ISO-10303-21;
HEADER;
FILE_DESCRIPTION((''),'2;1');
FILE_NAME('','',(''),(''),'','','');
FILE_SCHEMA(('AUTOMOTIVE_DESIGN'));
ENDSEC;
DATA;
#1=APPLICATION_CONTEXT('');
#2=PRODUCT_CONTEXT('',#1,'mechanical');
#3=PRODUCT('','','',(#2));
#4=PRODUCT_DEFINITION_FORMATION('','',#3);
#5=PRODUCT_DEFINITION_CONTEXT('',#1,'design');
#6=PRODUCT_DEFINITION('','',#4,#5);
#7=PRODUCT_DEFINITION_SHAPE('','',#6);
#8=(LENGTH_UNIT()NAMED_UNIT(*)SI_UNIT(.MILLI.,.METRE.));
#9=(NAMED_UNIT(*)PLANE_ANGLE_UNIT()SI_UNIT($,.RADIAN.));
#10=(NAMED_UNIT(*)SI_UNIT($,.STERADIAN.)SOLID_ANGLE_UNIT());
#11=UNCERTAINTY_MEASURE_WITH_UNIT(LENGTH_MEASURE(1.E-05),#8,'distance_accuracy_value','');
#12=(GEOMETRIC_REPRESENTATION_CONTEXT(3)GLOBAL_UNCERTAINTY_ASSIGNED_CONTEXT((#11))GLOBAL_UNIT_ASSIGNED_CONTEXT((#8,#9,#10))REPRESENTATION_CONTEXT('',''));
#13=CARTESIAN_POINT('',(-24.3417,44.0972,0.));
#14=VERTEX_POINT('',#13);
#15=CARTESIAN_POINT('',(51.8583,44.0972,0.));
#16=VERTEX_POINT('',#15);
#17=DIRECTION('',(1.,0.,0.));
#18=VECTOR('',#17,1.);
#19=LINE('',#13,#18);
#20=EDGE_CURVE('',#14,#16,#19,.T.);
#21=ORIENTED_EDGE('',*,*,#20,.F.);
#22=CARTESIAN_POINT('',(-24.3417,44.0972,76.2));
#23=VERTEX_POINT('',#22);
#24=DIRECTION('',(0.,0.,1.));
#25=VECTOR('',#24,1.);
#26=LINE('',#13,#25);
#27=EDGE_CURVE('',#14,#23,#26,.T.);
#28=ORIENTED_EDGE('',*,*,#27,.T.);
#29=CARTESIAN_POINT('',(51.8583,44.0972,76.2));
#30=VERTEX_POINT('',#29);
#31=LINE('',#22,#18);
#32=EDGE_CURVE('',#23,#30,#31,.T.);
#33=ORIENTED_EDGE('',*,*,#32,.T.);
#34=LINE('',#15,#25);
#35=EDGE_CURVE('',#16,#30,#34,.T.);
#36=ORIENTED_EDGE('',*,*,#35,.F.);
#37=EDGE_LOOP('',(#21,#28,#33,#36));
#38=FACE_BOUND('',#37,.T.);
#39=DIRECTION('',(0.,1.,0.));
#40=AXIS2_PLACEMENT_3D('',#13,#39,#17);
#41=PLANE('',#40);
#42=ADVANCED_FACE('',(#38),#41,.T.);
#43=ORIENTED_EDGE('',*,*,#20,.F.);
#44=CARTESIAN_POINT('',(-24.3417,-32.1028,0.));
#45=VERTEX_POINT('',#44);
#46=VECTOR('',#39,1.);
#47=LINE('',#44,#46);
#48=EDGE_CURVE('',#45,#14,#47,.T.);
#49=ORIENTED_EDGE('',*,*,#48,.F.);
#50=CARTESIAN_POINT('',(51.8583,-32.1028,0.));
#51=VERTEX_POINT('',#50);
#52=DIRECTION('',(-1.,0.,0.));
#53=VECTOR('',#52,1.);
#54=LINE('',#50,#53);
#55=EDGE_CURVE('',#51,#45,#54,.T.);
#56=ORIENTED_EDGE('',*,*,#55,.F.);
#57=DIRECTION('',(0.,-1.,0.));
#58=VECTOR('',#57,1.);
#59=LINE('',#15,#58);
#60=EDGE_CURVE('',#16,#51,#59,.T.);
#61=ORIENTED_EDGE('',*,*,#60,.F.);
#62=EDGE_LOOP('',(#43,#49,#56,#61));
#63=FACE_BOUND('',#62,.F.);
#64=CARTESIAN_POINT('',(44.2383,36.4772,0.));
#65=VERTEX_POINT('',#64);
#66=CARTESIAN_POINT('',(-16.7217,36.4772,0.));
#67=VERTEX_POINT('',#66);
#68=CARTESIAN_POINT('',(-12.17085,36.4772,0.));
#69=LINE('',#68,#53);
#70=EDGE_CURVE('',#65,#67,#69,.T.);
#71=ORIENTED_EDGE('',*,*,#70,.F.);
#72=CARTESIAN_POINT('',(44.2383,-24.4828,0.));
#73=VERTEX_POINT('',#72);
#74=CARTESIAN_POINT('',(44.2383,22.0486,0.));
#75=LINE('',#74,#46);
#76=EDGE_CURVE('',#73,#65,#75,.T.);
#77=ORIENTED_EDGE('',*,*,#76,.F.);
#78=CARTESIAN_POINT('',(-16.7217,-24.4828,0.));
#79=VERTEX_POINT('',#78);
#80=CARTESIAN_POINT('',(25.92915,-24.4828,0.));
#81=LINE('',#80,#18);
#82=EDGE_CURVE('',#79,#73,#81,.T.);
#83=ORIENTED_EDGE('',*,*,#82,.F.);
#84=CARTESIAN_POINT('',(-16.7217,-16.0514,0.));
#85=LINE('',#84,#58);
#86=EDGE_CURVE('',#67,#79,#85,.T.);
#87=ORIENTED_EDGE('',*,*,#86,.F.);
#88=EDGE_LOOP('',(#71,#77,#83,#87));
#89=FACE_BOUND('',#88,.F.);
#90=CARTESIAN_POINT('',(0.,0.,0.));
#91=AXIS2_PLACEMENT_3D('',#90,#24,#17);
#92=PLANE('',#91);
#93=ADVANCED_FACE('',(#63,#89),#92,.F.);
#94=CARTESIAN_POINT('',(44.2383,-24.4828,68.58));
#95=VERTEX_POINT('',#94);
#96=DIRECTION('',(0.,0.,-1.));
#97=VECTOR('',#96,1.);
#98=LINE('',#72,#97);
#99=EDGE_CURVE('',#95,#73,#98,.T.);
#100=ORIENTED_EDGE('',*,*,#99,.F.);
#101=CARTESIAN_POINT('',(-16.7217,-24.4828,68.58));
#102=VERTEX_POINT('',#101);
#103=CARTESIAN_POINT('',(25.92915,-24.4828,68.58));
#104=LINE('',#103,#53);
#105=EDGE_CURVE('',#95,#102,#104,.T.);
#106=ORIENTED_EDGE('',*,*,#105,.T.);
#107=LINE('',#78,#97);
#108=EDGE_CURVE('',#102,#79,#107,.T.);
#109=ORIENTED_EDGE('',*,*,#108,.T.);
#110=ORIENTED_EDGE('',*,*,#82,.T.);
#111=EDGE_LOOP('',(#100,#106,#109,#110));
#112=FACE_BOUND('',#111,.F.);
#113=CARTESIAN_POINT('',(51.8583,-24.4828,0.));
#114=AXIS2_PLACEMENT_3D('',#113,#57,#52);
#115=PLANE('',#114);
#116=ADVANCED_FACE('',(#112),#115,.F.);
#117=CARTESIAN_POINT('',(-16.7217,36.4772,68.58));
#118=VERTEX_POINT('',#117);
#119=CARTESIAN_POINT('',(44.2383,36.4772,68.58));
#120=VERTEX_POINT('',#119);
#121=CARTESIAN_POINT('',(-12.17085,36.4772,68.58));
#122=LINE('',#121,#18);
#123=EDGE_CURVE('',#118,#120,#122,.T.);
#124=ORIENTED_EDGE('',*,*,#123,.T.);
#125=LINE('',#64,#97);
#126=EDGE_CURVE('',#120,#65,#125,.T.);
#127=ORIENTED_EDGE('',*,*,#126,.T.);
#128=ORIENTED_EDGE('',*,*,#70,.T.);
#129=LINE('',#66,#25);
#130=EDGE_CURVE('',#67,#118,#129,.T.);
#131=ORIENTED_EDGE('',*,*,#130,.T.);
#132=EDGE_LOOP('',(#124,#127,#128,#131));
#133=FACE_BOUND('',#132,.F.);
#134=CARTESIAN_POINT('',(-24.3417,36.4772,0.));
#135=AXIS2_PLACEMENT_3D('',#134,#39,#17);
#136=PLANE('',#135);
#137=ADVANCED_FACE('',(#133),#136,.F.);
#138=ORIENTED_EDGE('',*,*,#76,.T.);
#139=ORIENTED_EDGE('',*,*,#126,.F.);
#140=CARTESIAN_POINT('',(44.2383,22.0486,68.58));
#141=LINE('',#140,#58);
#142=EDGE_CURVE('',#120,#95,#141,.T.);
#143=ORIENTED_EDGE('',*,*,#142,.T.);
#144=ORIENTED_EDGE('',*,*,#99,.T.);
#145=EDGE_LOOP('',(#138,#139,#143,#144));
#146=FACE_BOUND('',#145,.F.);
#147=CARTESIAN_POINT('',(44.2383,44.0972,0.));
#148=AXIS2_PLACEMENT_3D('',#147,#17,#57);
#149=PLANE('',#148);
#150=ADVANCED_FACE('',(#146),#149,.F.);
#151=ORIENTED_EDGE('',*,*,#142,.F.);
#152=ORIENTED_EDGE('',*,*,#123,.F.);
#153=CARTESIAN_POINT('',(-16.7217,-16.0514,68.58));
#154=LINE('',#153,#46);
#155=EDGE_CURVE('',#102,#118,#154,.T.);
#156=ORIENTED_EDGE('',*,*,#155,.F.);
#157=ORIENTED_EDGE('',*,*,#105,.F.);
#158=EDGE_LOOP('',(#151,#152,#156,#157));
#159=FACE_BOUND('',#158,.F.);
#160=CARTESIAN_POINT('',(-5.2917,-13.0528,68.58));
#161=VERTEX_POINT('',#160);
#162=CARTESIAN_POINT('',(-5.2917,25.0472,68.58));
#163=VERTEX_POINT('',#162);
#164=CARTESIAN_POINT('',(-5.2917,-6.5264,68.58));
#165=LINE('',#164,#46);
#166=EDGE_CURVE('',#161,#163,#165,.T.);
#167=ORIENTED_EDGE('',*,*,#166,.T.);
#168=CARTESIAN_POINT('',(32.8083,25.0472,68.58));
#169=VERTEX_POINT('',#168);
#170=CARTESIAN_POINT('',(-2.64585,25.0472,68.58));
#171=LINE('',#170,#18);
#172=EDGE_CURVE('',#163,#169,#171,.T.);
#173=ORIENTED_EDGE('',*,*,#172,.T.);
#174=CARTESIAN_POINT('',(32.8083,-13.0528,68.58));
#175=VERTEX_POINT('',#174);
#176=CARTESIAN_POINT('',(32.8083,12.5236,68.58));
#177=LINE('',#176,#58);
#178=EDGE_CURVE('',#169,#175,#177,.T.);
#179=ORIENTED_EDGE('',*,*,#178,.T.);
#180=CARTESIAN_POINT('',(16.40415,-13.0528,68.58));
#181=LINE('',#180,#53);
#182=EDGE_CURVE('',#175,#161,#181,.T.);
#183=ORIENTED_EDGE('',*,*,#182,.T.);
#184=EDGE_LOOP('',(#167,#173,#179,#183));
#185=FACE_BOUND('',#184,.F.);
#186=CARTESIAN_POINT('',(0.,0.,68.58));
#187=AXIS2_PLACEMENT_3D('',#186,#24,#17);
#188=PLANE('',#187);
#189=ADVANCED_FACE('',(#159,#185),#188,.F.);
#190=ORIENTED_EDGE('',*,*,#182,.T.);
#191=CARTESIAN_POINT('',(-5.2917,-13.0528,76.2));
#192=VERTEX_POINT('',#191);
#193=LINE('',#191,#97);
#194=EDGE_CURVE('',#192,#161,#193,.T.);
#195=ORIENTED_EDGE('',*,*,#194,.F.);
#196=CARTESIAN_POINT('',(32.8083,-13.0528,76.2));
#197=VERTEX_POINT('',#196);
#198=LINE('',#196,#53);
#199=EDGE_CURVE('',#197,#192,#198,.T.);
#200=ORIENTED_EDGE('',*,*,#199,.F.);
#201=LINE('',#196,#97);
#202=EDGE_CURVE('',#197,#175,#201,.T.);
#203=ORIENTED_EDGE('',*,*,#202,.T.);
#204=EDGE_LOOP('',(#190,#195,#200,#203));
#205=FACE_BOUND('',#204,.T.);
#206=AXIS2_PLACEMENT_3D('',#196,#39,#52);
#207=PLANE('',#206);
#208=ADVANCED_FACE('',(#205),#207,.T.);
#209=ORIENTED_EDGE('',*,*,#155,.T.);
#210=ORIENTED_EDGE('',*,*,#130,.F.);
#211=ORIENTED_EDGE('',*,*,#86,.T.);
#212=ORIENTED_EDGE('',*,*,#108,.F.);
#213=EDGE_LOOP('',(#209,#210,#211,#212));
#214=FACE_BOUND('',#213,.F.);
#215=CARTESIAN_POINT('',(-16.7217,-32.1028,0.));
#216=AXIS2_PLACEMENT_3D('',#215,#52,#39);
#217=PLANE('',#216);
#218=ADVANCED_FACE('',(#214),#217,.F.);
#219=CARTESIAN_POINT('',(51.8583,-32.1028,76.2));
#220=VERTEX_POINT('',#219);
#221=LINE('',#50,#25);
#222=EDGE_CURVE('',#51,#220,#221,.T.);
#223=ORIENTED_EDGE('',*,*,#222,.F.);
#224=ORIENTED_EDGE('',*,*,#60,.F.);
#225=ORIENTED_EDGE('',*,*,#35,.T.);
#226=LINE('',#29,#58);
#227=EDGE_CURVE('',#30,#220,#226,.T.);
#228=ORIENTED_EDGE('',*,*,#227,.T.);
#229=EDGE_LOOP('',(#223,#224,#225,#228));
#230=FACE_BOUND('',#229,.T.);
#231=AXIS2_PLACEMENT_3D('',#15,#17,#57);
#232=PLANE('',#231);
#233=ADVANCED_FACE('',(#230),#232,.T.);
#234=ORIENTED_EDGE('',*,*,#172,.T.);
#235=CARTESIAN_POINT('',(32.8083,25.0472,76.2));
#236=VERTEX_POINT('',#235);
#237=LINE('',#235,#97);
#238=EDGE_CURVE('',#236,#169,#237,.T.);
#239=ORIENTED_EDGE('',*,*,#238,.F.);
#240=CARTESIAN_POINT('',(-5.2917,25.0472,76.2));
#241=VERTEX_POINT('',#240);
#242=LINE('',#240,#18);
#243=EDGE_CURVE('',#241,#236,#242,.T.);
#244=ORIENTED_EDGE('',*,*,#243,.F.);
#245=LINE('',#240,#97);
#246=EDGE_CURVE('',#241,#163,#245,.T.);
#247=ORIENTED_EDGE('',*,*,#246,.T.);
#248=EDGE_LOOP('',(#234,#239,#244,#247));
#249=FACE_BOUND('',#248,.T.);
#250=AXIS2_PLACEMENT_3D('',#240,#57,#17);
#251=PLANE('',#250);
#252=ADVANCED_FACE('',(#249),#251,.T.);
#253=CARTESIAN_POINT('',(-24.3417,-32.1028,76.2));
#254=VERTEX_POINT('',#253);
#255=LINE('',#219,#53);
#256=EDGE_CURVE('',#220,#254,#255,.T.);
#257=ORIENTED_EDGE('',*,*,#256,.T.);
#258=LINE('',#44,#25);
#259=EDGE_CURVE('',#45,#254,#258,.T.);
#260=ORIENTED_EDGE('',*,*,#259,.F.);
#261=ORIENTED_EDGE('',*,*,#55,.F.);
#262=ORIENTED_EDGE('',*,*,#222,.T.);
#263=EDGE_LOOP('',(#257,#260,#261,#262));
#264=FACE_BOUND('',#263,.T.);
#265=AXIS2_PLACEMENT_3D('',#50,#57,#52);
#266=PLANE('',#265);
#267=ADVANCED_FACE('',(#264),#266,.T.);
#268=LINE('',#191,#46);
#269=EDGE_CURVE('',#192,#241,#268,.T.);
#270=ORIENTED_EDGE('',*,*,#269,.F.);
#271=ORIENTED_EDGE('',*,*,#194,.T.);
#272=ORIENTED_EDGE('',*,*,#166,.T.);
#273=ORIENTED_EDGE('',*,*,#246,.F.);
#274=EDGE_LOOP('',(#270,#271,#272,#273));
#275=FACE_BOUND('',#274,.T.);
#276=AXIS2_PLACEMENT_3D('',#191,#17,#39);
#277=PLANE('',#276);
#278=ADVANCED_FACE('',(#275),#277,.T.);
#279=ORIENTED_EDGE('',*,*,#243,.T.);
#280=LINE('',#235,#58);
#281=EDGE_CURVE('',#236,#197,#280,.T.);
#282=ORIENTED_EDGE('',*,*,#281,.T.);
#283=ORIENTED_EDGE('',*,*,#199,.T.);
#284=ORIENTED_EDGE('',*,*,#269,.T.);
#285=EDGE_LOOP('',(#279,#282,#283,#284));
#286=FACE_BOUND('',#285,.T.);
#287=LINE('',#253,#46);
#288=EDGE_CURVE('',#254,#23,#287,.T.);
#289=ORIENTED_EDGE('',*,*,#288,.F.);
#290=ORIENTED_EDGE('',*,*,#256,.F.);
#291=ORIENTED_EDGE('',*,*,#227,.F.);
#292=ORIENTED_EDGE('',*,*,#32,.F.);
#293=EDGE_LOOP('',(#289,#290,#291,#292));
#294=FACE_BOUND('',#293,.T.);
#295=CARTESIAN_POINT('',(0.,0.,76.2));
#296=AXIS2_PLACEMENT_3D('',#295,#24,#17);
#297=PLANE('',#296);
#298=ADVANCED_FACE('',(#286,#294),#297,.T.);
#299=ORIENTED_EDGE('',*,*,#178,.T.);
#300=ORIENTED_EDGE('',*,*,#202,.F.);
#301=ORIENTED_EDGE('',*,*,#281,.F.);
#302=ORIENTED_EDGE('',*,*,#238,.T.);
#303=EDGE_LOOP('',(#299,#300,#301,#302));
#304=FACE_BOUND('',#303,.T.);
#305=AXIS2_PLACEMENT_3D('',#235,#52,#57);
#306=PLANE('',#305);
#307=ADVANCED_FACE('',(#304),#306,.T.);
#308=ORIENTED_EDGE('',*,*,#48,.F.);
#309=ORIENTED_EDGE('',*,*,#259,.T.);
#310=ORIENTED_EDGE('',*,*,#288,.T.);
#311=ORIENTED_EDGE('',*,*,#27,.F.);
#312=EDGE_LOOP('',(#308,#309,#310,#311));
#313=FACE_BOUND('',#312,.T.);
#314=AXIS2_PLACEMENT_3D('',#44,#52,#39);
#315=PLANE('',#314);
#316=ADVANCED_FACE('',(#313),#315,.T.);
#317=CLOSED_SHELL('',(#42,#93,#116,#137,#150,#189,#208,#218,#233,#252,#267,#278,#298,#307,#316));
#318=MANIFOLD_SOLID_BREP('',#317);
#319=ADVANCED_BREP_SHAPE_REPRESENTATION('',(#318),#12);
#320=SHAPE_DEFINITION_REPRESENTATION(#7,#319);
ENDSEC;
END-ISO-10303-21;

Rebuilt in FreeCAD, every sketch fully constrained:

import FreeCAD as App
import Part
import Sketcher

V = App.Vector
Q = App.Units.Quantity


def faces_at(feature, points):
    """Names of the faces that lie closest to the given points."""
    faces = feature.Shape.Faces
    near = lambda p: min(range(len(faces)), key=lambda i: faces[i].distToShape(Part.Vertex(*p))[0])
    return sorted({f"Face{near(p) + 1}" for p in points})


def add_polygon(sketch, points):
    """Adds a closed chain of lines whose ends are joined by coincident constraints."""
    first, n = sketch.GeometryCount, len(points)
    for a, b in zip(points, points[1:] + points[:1]):
        sketch.addGeometry(Part.LineSegment(App.Vector(*a, 0), App.Vector(*b, 0)), False)
    for i in range(n):
        sketch.addConstraint(Sketcher.Constraint("Coincident", first + i, 2, first + (i + 1) % n, 1))

doc = App.newDocument("Part")
body = doc.addObject("PartDesign::Body", "Body")

# Sketch on XY plane
sketch1 = doc.addObject("Sketcher::SketchObject", "Sketch")
body.addObject(sketch1)
sketch1.AttachmentSupport = (doc.XY_Plane, [""])
sketch1.MapMode = "FlatFace"
add_polygon(sketch1, [(52, 44), (-24, 44), (-24, -32), (52, -32)])  # lines 0-3
sketch1.addConstraint([
    Sketcher.Constraint("Horizontal", 0),
    Sketcher.Constraint("Vertical", 1),
    Sketcher.Constraint("Horizontal", 2),
    Sketcher.Constraint("Vertical", 3),
    Sketcher.Constraint("Equal", 2, 1),
    Sketcher.Constraint("DistanceX", 0, 2, 0, 1, Q("3 in")),
    Sketcher.Constraint("DistanceY", -1, 1, 0, 2, Q("1.7361 in")),
    Sketcher.Constraint("DistanceX", 0, 2, -1, 1, 24.3417),
])
pad1 = doc.addObject("PartDesign::Pad", "Pad")
body.addObject(pad1)
pad1.Profile = sketch1
pad1.Length = Q("3 in")
doc.recompute()

thickness = doc.addObject("PartDesign::Thickness", "Thickness")
body.addObject(thickness)
thickness.Base = (pad1, faces_at(pad1, [(1.058, 18.697, 0)]))
thickness.Value = Q("0.3 in")
thickness.Reversed = True
thickness.Join = "Intersection"

# Sketch on XY plane
sketch2 = doc.addObject("Sketcher::SketchObject", "Sketch001")
body.addObject(sketch2)
sketch2.AttachmentSupport = (doc.XY_Plane, [""])
sketch2.MapMode = "FlatFace"
sketch2.AttachmentOffset = App.Placement(V(0, 0, 3 * 25.4), App.Rotation())
add_polygon(sketch2, [(33, 25), (-5, 25), (-5, -13), (33, -13)])  # lines 0-3
sketch2.addConstraint([
    Sketcher.Constraint("Horizontal", 0),
    Sketcher.Constraint("Vertical", 1),
    Sketcher.Constraint("Horizontal", 2),
    Sketcher.Constraint("Vertical", 3),
    Sketcher.Constraint("Equal", 2, 1),
    Sketcher.Constraint("DistanceX", 0, 2, 0, 1, Q("1.5 in")),
    Sketcher.Constraint("DistanceY", -1, 1, 0, 2, Q("0.9861 in")),
    Sketcher.Constraint("DistanceX", 0, 2, -1, 1, 5.2917),
])
pocket1 = doc.addObject("PartDesign::Pocket", "Pocket")
body.addObject(pocket1)
pocket1.Profile = sketch2
pocket1.Length = Q("1 in")

doc.recompute()
